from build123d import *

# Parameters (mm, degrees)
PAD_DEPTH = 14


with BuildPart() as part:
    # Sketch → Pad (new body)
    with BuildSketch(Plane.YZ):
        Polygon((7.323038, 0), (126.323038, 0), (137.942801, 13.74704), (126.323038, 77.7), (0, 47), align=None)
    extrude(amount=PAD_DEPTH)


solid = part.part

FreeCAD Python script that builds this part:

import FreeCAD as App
import Part
import Sketcher

V = App.Vector
Q = App.Units.Quantity

doc = App.newDocument("Part")
body = doc.addObject("PartDesign::Body", "Body")

# Sketch on YZ plane
sketch1 = doc.addObject("Sketcher::SketchObject", "Sketch")
body.addObject(sketch1)
sketch1.AttachmentSupport = (doc.YZ_Plane, [""])
sketch1.MapMode = "FlatFace"
sketch1.addGeometry([
    Part.LineSegment(V(7, 0, 0), V(126, 0, 0)),  # 0
    Part.LineSegment(V(126, 0, 0), V(138, 14, 0)),  # 1
    Part.LineSegment(V(138, 14, 0), V(126, 78, 0)),  # 2
    Part.LineSegment(V(126, 78, 0), V(0, 47, 0)),  # 3
    Part.LineSegment(V(0, 47, 0), V(7, 0, 0)),  # 4
], False)
sketch1.addConstraint([
    Sketcher.Constraint("Coincident", 0, 2, 1, 1),
    Sketcher.Constraint("Coincident", 1, 2, 2, 1),
    Sketcher.Constraint("Coincident", 2, 2, 3, 1),
    Sketcher.Constraint("Coincident", 3, 2, 4, 1),
    Sketcher.Constraint("Coincident", 4, 2, 0, 1),
    Sketcher.Constraint("Horizontal", 0),
    Sketcher.Constraint("PointOnObject", 0, 2, -1),
    Sketcher.Constraint("PointOnObject", 3, 2, -2),
    Sketcher.Constraint("Vertical", 0, 2, 2, 2),
    Sketcher.Constraint("DistanceX", 0, 1, 0, 2, Q("119 mm")),
    Sketcher.Constraint("Distance", 1, Q("18 mm")),
    Sketcher.Constraint("Distance", 2, Q("65 mm")),
    Sketcher.Constraint("Distance", 3, Q("130 mm")),
    Sketcher.Constraint("DistanceY", -1, 1, 3, 2, Q("47 mm")),
    Sketcher.Constraint("DistanceY", -1, 1, 2, 2, Q("77.7 mm")),
])
pad1 = doc.addObject("PartDesign::Pad", "Pad")
body.addObject(pad1)
pad1.Profile = sketch1
pad1.Length = 14

doc.recompute()
